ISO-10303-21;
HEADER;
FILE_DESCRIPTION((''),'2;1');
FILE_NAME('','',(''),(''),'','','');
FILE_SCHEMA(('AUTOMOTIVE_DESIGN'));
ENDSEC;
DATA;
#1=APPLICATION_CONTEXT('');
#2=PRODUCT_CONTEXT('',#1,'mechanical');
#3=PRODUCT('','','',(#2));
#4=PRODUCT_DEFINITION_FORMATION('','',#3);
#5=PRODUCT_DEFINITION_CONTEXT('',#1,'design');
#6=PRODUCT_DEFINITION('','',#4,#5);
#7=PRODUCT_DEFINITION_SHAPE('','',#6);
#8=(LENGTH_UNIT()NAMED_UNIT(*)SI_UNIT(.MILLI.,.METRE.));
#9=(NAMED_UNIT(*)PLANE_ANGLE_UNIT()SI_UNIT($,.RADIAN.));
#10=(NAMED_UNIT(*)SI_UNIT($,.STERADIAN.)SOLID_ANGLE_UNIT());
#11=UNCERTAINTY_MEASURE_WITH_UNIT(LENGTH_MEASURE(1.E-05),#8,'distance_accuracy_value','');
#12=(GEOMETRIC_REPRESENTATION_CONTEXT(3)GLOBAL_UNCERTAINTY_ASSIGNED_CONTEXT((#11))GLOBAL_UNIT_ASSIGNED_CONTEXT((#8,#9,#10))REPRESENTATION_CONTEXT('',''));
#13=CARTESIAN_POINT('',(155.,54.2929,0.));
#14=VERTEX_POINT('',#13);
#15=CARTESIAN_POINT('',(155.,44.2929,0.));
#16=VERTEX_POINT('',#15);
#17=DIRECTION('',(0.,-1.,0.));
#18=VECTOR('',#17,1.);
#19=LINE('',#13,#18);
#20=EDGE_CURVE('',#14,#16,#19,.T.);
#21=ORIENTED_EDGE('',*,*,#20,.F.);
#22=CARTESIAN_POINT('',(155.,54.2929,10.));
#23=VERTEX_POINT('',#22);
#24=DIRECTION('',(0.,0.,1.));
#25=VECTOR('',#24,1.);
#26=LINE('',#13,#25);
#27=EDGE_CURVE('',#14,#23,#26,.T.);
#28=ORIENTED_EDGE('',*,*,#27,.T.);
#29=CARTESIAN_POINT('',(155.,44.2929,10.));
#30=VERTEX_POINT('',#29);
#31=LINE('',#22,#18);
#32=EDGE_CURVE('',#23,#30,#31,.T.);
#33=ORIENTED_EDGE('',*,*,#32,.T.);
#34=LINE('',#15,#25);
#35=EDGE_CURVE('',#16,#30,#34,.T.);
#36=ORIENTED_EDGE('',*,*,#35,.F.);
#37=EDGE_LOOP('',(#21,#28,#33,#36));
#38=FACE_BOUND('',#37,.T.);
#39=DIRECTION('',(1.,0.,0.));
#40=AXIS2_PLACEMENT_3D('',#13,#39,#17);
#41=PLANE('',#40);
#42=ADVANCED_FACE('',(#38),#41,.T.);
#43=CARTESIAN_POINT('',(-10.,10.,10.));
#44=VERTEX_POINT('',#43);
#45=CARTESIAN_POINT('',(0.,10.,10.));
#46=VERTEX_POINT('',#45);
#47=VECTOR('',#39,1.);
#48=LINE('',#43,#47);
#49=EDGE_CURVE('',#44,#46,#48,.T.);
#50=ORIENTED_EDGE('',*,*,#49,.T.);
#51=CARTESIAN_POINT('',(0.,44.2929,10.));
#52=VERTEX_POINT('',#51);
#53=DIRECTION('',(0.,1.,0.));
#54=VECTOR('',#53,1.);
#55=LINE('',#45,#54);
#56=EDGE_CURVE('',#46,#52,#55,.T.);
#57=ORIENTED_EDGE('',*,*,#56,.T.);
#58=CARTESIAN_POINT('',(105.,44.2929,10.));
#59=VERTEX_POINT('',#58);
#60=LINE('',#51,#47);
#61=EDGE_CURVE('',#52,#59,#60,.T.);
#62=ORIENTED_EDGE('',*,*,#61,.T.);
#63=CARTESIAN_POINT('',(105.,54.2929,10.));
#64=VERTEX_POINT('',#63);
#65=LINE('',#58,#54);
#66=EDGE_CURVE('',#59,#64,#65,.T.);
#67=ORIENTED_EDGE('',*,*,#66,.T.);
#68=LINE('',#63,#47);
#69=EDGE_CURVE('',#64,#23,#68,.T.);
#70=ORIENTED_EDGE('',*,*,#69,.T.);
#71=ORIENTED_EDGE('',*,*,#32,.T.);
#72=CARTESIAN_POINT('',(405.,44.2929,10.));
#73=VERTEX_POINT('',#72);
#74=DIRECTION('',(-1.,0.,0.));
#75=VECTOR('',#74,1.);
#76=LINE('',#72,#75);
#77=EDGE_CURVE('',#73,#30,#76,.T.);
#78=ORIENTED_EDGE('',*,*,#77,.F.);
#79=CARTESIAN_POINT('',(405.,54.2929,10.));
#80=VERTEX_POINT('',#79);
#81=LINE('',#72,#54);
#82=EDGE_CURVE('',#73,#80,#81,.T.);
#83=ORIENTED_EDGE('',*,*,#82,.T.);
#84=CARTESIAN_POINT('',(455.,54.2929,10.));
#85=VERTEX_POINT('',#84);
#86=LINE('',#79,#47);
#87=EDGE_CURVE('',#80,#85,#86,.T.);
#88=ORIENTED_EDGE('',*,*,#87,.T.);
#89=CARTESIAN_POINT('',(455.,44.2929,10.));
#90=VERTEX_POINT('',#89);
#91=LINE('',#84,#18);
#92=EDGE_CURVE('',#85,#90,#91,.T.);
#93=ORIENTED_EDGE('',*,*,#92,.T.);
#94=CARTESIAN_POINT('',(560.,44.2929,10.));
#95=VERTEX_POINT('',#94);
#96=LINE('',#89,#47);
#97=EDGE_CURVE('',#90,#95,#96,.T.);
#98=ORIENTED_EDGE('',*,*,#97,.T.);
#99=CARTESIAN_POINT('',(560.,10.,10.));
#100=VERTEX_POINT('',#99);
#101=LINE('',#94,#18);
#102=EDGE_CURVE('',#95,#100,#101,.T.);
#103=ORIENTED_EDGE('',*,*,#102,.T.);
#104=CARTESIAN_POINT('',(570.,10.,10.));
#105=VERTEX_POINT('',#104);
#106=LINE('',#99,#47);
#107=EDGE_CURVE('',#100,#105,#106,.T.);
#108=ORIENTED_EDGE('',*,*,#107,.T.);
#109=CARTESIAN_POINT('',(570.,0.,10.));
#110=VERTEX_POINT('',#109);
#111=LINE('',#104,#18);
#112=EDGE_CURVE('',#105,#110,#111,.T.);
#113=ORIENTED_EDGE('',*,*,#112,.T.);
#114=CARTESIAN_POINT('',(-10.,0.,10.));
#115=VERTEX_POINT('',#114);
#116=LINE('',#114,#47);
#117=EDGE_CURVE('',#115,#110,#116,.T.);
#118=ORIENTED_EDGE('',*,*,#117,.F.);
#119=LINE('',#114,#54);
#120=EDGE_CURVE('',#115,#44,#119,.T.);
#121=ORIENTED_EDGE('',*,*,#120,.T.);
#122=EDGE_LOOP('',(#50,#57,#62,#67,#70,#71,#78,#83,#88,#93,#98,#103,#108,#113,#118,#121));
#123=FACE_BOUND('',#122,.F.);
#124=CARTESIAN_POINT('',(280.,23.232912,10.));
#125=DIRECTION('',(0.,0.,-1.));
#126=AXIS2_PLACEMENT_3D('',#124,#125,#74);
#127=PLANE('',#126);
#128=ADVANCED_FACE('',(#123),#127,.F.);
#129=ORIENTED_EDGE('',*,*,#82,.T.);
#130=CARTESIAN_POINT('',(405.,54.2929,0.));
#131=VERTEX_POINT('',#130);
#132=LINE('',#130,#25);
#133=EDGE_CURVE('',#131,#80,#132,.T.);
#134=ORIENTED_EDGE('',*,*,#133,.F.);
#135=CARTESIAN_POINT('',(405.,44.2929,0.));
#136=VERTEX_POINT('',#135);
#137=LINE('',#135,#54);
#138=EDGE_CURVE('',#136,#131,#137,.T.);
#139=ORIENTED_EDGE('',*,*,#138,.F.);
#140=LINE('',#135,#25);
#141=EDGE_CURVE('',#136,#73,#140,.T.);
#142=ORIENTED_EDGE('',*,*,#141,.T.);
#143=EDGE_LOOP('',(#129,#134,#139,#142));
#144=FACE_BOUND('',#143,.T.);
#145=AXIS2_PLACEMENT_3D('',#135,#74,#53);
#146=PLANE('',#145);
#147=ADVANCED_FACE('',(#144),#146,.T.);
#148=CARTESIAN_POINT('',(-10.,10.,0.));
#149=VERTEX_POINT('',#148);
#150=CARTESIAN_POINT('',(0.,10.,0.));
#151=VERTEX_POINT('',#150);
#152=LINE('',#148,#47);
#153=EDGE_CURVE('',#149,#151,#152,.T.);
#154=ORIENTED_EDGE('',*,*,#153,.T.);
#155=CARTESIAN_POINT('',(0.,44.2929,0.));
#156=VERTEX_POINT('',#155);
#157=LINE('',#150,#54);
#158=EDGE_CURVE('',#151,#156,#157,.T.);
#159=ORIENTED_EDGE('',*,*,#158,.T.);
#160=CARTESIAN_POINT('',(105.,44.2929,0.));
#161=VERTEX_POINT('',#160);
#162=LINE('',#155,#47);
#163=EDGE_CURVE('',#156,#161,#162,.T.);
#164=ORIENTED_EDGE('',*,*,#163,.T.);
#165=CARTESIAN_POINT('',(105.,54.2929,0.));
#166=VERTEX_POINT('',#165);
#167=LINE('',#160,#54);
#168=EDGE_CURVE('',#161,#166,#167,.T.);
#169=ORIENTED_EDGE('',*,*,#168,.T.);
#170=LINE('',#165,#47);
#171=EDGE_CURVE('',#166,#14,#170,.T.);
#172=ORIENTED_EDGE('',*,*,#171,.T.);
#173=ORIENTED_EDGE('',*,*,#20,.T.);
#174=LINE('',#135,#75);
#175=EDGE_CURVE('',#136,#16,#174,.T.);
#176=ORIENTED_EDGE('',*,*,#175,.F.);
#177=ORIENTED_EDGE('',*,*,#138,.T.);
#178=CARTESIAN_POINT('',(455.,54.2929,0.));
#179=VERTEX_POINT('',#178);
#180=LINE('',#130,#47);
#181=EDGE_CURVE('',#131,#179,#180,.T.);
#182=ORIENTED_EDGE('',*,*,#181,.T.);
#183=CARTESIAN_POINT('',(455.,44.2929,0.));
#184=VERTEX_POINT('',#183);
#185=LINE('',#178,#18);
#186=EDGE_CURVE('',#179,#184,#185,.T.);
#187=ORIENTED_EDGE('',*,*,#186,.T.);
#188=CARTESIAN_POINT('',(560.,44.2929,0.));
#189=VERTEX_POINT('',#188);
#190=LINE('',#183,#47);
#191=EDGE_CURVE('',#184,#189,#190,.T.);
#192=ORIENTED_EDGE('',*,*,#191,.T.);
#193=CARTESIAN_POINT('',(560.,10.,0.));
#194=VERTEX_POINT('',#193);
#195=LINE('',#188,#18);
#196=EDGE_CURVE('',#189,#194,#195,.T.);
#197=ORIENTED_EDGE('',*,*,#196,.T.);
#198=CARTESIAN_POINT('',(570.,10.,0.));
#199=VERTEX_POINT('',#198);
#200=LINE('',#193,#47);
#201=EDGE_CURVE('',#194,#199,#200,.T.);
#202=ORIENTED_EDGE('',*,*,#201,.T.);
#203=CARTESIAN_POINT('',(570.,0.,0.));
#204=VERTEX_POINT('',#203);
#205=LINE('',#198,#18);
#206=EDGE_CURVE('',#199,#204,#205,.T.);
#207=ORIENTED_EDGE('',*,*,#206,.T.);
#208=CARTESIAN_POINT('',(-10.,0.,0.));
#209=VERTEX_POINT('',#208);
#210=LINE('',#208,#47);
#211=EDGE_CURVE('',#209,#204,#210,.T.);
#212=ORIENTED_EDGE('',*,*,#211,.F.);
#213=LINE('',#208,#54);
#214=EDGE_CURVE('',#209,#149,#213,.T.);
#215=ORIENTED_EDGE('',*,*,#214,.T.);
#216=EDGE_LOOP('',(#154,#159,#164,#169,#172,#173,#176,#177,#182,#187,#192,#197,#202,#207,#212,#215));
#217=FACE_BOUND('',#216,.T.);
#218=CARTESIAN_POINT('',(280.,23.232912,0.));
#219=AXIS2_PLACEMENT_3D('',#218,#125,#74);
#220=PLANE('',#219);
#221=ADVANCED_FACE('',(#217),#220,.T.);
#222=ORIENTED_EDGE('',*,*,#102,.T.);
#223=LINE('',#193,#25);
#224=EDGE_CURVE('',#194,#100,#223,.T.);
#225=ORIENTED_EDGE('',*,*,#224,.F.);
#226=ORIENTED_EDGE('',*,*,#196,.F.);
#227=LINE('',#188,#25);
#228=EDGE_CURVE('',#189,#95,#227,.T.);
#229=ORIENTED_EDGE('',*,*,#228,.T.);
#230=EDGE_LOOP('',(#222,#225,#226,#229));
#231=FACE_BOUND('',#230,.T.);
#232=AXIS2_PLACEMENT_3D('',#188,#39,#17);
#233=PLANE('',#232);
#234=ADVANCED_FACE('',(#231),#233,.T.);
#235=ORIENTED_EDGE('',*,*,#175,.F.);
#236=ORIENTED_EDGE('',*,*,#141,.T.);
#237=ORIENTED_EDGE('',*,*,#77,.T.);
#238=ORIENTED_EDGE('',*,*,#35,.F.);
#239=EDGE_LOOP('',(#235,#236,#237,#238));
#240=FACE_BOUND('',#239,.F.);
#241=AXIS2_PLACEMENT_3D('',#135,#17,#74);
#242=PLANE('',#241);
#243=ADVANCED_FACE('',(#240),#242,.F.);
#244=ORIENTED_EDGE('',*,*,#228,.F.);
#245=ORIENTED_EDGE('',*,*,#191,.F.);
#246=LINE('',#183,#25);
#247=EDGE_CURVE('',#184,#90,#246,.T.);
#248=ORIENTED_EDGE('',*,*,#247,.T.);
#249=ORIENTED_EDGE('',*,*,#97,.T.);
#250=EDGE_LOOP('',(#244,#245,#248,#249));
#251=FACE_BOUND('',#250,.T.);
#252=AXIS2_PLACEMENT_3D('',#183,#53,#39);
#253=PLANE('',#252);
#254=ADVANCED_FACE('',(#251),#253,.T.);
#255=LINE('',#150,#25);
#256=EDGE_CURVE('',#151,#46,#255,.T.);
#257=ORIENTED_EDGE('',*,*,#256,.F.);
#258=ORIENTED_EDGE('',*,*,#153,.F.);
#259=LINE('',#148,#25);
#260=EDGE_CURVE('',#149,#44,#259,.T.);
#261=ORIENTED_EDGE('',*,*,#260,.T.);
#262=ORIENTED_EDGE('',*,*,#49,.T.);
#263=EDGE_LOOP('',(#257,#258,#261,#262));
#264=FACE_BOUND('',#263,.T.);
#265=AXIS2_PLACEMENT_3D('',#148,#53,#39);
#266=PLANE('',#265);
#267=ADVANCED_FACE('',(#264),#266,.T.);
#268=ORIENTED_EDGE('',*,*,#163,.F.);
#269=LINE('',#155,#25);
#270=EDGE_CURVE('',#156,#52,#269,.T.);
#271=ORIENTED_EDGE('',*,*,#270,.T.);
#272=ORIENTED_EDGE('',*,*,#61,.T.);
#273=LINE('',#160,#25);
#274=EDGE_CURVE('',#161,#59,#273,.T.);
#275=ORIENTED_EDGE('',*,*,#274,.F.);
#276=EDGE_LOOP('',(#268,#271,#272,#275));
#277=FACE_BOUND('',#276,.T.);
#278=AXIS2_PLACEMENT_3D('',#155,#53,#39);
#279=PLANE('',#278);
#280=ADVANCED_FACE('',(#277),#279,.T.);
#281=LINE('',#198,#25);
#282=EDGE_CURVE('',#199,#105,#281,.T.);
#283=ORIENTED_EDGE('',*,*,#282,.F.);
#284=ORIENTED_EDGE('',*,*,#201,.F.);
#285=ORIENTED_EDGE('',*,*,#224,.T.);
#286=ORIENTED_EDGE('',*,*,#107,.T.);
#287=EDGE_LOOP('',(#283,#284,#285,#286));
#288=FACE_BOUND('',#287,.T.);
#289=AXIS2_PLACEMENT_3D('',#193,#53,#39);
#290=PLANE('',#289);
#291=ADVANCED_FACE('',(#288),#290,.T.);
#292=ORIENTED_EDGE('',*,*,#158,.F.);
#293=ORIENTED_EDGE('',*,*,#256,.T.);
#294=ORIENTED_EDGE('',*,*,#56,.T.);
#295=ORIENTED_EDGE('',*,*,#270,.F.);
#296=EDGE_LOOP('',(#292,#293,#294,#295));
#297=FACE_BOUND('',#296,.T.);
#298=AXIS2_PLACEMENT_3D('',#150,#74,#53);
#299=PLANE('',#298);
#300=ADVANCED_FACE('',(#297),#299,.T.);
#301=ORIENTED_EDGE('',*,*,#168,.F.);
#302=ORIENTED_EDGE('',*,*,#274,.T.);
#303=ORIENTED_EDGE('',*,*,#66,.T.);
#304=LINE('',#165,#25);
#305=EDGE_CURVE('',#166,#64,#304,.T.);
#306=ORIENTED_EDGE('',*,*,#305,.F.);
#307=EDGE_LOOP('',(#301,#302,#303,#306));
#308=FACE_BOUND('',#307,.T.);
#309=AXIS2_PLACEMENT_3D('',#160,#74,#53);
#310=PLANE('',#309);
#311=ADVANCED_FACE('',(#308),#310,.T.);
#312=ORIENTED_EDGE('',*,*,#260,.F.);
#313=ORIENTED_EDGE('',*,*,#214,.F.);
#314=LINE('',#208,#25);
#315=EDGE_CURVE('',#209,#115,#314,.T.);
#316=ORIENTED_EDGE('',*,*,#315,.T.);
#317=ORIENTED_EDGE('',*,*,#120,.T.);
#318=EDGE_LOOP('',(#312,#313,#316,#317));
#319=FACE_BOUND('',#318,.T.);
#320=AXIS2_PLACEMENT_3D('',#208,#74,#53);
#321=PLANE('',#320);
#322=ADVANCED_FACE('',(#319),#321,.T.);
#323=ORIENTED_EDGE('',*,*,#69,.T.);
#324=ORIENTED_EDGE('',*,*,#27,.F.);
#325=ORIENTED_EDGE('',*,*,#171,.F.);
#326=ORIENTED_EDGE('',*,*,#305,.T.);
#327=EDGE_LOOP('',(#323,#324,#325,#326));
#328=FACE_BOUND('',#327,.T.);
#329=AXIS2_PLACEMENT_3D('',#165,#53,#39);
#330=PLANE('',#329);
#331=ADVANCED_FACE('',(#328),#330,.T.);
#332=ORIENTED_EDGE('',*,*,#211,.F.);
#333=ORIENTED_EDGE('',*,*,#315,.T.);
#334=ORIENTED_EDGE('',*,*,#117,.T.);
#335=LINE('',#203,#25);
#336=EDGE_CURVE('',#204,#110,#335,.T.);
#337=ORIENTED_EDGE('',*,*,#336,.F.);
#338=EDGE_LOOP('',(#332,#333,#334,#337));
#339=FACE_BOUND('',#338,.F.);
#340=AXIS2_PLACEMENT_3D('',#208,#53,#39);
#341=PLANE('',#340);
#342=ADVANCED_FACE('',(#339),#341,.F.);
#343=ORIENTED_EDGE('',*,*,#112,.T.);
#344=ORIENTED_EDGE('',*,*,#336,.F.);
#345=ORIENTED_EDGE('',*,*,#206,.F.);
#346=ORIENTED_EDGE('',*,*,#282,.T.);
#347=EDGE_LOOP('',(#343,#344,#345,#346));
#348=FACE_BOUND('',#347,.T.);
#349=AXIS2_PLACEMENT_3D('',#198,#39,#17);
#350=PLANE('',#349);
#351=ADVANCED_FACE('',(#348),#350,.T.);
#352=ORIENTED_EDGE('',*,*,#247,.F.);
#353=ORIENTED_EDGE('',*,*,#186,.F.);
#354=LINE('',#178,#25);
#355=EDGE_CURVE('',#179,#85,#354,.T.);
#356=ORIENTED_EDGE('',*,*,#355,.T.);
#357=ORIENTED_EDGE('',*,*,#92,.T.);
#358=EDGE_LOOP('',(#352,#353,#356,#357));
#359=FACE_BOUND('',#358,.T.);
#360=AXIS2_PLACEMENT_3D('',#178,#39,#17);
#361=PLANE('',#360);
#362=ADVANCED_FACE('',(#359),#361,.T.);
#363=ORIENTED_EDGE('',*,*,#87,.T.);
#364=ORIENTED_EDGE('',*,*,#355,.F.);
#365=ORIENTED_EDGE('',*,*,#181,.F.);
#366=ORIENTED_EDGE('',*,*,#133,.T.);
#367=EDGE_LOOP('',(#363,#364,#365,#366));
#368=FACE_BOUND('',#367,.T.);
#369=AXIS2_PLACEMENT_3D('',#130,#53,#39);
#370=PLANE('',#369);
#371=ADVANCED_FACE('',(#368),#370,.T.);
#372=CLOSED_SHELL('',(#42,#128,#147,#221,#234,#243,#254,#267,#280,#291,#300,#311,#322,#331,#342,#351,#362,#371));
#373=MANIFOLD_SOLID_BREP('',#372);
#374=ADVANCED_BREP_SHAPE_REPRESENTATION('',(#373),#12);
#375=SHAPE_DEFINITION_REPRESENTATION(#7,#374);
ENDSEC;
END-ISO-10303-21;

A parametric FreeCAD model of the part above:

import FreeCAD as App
import Part
import Sketcher
Q = App.Units.Quantity

doc = App.newDocument("Part")
body = doc.addObject("PartDesign::Body", "Body")

sketch1 = doc.addObject("Sketcher::SketchObject", "Sketch")
body.addObject(sketch1)
sketch1.AttachmentSupport = (doc.XY_Plane, [""])
sketch1.MapMode = "FlatFace"
sketch1.addGeometry(Part.LineSegment(App.Vector(-10, 0, 0), App.Vector(570, 0, 0)), False)
sketch1.addGeometry(Part.LineSegment(App.Vector(570, 0, 0), App.Vector(570, 10, 0)), False)
sketch1.addGeometry(Part.LineSegment(App.Vector(570, 10, 0), App.Vector(560, 10, 0)), False)
sketch1.addGeometry(Part.LineSegment(App.Vector(560, 10, 0), App.Vector(560, 44, 0)), False)
sketch1.addGeometry(Part.LineSegment(App.Vector(560, 44, 0), App.Vector(455, 44, 0)), False)
sketch1.addGeometry(Part.LineSegment(App.Vector(455, 44, 0), App.Vector(455, 54, 0)), False)
sketch1.addGeometry(Part.LineSegment(App.Vector(455, 54, 0), App.Vector(405, 54, 0)), False)
sketch1.addGeometry(Part.LineSegment(App.Vector(405, 54, 0), App.Vector(405, 44, 0)), False)
sketch1.addGeometry(Part.LineSegment(App.Vector(405, 44, 0), App.Vector(155, 44, 0)), False)
sketch1.addGeometry(Part.LineSegment(App.Vector(155, 44, 0), App.Vector(155, 54, 0)), False)
sketch1.addGeometry(Part.LineSegment(App.Vector(155, 54, 0), App.Vector(105, 54, 0)), False)
sketch1.addGeometry(Part.LineSegment(App.Vector(105, 54, 0), App.Vector(105, 44, 0)), False)
sketch1.addGeometry(Part.LineSegment(App.Vector(105, 44, 0), App.Vector(0, 44, 0)), False)
sketch1.addGeometry(Part.LineSegment(App.Vector(0, 44, 0), App.Vector(0, 10, 0)), False)
sketch1.addGeometry(Part.LineSegment(App.Vector(0, 10, 0), App.Vector(-10, 10, 0)), False)
sketch1.addGeometry(Part.LineSegment(App.Vector(-10, 10, 0), App.Vector(-10, 0, 0)), False)
sketch1.addConstraint(Sketcher.Constraint("Coincident", 0, 2, 1, 1))
sketch1.addConstraint(Sketcher.Constraint("Coincident", 1, 2, 2, 1))
sketch1.addConstraint(Sketcher.Constraint("Coincident", 2, 2, 3, 1))
sketch1.addConstraint(Sketcher.Constraint("Coincident", 3, 2, 4, 1))
sketch1.addConstraint(Sketcher.Constraint("Coincident", 4, 2, 5, 1))
sketch1.addConstraint(Sketcher.Constraint("Coincident", 5, 2, 6, 1))
sketch1.addConstraint(Sketcher.Constraint("Coincident", 6, 2, 7, 1))
sketch1.addConstraint(Sketcher.Constraint("Coincident", 7, 2, 8, 1))
sketch1.addConstraint(Sketcher.Constraint("Coincident", 8, 2, 9, 1))
sketch1.addConstraint(Sketcher.Constraint("Coincident", 9, 2, 10, 1))
sketch1.addConstraint(Sketcher.Constraint("Coincident", 10, 2, 11, 1))
sketch1.addConstraint(Sketcher.Constraint("Coincident", 11, 2, 12, 1))
sketch1.addConstraint(Sketcher.Constraint("Coincident", 12, 2, 13, 1))
sketch1.addConstraint(Sketcher.Constraint("Coincident", 13, 2, 14, 1))
sketch1.addConstraint(Sketcher.Constraint("Coincident", 14, 2, 15, 1))
sketch1.addConstraint(Sketcher.Constraint("Coincident", 15, 2, 0, 1))
sketch1.addConstraint(Sketcher.Constraint("Horizontal", 0))
sketch1.addConstraint(Sketcher.Constraint("Vertical", 1))
sketch1.addConstraint(Sketcher.Constraint("Horizontal", 2))
sketch1.addConstraint(Sketcher.Constraint("Vertical", 3))
sketch1.addConstraint(Sketcher.Constraint("Horizontal", 4))
sketch1.addConstraint(Sketcher.Constraint("Vertical", 5))
sketch1.addConstraint(Sketcher.Constraint("Horizontal", 6))
sketch1.addConstraint(Sketcher.Constraint("Vertical", 7))
sketch1.addConstraint(Sketcher.Constraint("Horizontal", 8))
sketch1.addConstraint(Sketcher.Constraint("Vertical", 9))
sketch1.addConstraint(Sketcher.Constraint("Horizontal", 10))
sketch1.addConstraint(Sketcher.Constraint("Vertical", 11))
sketch1.addConstraint(Sketcher.Constraint("Horizontal", 12))
sketch1.addConstraint(Sketcher.Constraint("Vertical", 13))
sketch1.addConstraint(Sketcher.Constraint("Horizontal", 14))
sketch1.addConstraint(Sketcher.Constraint("Vertical", 15))
sketch1.addConstraint(Sketcher.Constraint("PointOnObject", 0, 2, -1))
sketch1.addConstraint(Sketcher.Constraint("PointOnObject", 12, 2, -2))
sketch1.addConstraint(Sketcher.Constraint("Horizontal", 4, 2, 7, 2))
sketch1.addConstraint(Sketcher.Constraint("Horizontal", 6, 2, 9, 2))
sketch1.addConstraint(Sketcher.Constraint("Horizontal", 8, 2, 11, 2))
sketch1.addConstraint(Sketcher.Constraint("Horizontal", 2, 2, 13, 2))
sketch1.addConstraint(Sketcher.Constraint("Equal", 6, 10))
sketch1.addConstraint(Sketcher.Constraint("Equal", 4, 12))
sketch1.addConstraint(Sketcher.Constraint("Equal", 2, 14))
sketch1.addConstraint(Sketcher.Constraint("Equal", 14, 1))
sketch1.addConstraint(Sketcher.Constraint("Equal", 1, 5))
sketch1.addConstraint(Sketcher.Constraint("DistanceX", 0, 1, 0, 2, Q("580 mm")))
sketch1.addConstraint(Sketcher.Constraint("DistanceX", 2, 2, 2, 1, Q("10 mm")))
sketch1.addConstraint(Sketcher.Constraint("DistanceX", 4, 2, 4, 1, Q("105 mm")))
sketch1.addConstraint(Sketcher.Constraint("DistanceX", 6, 2, 6, 1, Q("50 mm")))
sketch1.addConstraint(Sketcher.Constraint("DistanceY", 3, 1, 3, 2, Q("34.2929 mm")))
pad1 = doc.addObject("PartDesign::Pad", "Pad")
body.addObject(pad1)
pad1.Profile = sketch1
pad1.Length = 10

doc.recompute()
